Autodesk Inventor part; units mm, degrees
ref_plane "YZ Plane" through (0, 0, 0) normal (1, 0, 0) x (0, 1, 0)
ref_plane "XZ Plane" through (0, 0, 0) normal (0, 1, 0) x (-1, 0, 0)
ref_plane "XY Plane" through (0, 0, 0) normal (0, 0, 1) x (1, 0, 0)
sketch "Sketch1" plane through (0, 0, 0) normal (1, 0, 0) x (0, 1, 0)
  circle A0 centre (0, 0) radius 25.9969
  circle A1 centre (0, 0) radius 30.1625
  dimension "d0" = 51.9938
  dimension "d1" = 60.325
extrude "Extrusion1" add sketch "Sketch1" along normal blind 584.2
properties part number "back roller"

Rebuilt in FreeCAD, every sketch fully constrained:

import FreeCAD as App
import Part
import Sketcher
from FreeCAD import Vector
Q = App.Units.Quantity

doc = App.newDocument("Part")
body = doc.addObject("PartDesign::Body", "Body")

sketch1 = body.newObject("Sketcher::SketchObject", "Sketch")
sketch1.AttachmentSupport = (doc.getObject("YZ_Plane"), [""])
sketch1.MapMode = "FlatFace"
sketch1.addGeometry([
    Part.Circle(Vector(0, 0, 0), Vector(0, 0, 1), 30),
    Part.Circle(Vector(0, 0, 0), Vector(0, 0, 1), 26),
], False)
sketch1.addConstraint([
    Sketcher.Constraint("Coincident", 0, 3, -1, 1),
    Sketcher.Constraint("Coincident", 1, 3, -1, 1),
    Sketcher.Constraint("Diameter", 0, Q("2.375 in")),
    Sketcher.Constraint("Diameter", 1, Q("2.047 in")),
])
pad1 = body.newObject("PartDesign::Pad", "Pad")
pad1.Profile = sketch1
pad1.Length = Q("23 in")

doc.recompute()
